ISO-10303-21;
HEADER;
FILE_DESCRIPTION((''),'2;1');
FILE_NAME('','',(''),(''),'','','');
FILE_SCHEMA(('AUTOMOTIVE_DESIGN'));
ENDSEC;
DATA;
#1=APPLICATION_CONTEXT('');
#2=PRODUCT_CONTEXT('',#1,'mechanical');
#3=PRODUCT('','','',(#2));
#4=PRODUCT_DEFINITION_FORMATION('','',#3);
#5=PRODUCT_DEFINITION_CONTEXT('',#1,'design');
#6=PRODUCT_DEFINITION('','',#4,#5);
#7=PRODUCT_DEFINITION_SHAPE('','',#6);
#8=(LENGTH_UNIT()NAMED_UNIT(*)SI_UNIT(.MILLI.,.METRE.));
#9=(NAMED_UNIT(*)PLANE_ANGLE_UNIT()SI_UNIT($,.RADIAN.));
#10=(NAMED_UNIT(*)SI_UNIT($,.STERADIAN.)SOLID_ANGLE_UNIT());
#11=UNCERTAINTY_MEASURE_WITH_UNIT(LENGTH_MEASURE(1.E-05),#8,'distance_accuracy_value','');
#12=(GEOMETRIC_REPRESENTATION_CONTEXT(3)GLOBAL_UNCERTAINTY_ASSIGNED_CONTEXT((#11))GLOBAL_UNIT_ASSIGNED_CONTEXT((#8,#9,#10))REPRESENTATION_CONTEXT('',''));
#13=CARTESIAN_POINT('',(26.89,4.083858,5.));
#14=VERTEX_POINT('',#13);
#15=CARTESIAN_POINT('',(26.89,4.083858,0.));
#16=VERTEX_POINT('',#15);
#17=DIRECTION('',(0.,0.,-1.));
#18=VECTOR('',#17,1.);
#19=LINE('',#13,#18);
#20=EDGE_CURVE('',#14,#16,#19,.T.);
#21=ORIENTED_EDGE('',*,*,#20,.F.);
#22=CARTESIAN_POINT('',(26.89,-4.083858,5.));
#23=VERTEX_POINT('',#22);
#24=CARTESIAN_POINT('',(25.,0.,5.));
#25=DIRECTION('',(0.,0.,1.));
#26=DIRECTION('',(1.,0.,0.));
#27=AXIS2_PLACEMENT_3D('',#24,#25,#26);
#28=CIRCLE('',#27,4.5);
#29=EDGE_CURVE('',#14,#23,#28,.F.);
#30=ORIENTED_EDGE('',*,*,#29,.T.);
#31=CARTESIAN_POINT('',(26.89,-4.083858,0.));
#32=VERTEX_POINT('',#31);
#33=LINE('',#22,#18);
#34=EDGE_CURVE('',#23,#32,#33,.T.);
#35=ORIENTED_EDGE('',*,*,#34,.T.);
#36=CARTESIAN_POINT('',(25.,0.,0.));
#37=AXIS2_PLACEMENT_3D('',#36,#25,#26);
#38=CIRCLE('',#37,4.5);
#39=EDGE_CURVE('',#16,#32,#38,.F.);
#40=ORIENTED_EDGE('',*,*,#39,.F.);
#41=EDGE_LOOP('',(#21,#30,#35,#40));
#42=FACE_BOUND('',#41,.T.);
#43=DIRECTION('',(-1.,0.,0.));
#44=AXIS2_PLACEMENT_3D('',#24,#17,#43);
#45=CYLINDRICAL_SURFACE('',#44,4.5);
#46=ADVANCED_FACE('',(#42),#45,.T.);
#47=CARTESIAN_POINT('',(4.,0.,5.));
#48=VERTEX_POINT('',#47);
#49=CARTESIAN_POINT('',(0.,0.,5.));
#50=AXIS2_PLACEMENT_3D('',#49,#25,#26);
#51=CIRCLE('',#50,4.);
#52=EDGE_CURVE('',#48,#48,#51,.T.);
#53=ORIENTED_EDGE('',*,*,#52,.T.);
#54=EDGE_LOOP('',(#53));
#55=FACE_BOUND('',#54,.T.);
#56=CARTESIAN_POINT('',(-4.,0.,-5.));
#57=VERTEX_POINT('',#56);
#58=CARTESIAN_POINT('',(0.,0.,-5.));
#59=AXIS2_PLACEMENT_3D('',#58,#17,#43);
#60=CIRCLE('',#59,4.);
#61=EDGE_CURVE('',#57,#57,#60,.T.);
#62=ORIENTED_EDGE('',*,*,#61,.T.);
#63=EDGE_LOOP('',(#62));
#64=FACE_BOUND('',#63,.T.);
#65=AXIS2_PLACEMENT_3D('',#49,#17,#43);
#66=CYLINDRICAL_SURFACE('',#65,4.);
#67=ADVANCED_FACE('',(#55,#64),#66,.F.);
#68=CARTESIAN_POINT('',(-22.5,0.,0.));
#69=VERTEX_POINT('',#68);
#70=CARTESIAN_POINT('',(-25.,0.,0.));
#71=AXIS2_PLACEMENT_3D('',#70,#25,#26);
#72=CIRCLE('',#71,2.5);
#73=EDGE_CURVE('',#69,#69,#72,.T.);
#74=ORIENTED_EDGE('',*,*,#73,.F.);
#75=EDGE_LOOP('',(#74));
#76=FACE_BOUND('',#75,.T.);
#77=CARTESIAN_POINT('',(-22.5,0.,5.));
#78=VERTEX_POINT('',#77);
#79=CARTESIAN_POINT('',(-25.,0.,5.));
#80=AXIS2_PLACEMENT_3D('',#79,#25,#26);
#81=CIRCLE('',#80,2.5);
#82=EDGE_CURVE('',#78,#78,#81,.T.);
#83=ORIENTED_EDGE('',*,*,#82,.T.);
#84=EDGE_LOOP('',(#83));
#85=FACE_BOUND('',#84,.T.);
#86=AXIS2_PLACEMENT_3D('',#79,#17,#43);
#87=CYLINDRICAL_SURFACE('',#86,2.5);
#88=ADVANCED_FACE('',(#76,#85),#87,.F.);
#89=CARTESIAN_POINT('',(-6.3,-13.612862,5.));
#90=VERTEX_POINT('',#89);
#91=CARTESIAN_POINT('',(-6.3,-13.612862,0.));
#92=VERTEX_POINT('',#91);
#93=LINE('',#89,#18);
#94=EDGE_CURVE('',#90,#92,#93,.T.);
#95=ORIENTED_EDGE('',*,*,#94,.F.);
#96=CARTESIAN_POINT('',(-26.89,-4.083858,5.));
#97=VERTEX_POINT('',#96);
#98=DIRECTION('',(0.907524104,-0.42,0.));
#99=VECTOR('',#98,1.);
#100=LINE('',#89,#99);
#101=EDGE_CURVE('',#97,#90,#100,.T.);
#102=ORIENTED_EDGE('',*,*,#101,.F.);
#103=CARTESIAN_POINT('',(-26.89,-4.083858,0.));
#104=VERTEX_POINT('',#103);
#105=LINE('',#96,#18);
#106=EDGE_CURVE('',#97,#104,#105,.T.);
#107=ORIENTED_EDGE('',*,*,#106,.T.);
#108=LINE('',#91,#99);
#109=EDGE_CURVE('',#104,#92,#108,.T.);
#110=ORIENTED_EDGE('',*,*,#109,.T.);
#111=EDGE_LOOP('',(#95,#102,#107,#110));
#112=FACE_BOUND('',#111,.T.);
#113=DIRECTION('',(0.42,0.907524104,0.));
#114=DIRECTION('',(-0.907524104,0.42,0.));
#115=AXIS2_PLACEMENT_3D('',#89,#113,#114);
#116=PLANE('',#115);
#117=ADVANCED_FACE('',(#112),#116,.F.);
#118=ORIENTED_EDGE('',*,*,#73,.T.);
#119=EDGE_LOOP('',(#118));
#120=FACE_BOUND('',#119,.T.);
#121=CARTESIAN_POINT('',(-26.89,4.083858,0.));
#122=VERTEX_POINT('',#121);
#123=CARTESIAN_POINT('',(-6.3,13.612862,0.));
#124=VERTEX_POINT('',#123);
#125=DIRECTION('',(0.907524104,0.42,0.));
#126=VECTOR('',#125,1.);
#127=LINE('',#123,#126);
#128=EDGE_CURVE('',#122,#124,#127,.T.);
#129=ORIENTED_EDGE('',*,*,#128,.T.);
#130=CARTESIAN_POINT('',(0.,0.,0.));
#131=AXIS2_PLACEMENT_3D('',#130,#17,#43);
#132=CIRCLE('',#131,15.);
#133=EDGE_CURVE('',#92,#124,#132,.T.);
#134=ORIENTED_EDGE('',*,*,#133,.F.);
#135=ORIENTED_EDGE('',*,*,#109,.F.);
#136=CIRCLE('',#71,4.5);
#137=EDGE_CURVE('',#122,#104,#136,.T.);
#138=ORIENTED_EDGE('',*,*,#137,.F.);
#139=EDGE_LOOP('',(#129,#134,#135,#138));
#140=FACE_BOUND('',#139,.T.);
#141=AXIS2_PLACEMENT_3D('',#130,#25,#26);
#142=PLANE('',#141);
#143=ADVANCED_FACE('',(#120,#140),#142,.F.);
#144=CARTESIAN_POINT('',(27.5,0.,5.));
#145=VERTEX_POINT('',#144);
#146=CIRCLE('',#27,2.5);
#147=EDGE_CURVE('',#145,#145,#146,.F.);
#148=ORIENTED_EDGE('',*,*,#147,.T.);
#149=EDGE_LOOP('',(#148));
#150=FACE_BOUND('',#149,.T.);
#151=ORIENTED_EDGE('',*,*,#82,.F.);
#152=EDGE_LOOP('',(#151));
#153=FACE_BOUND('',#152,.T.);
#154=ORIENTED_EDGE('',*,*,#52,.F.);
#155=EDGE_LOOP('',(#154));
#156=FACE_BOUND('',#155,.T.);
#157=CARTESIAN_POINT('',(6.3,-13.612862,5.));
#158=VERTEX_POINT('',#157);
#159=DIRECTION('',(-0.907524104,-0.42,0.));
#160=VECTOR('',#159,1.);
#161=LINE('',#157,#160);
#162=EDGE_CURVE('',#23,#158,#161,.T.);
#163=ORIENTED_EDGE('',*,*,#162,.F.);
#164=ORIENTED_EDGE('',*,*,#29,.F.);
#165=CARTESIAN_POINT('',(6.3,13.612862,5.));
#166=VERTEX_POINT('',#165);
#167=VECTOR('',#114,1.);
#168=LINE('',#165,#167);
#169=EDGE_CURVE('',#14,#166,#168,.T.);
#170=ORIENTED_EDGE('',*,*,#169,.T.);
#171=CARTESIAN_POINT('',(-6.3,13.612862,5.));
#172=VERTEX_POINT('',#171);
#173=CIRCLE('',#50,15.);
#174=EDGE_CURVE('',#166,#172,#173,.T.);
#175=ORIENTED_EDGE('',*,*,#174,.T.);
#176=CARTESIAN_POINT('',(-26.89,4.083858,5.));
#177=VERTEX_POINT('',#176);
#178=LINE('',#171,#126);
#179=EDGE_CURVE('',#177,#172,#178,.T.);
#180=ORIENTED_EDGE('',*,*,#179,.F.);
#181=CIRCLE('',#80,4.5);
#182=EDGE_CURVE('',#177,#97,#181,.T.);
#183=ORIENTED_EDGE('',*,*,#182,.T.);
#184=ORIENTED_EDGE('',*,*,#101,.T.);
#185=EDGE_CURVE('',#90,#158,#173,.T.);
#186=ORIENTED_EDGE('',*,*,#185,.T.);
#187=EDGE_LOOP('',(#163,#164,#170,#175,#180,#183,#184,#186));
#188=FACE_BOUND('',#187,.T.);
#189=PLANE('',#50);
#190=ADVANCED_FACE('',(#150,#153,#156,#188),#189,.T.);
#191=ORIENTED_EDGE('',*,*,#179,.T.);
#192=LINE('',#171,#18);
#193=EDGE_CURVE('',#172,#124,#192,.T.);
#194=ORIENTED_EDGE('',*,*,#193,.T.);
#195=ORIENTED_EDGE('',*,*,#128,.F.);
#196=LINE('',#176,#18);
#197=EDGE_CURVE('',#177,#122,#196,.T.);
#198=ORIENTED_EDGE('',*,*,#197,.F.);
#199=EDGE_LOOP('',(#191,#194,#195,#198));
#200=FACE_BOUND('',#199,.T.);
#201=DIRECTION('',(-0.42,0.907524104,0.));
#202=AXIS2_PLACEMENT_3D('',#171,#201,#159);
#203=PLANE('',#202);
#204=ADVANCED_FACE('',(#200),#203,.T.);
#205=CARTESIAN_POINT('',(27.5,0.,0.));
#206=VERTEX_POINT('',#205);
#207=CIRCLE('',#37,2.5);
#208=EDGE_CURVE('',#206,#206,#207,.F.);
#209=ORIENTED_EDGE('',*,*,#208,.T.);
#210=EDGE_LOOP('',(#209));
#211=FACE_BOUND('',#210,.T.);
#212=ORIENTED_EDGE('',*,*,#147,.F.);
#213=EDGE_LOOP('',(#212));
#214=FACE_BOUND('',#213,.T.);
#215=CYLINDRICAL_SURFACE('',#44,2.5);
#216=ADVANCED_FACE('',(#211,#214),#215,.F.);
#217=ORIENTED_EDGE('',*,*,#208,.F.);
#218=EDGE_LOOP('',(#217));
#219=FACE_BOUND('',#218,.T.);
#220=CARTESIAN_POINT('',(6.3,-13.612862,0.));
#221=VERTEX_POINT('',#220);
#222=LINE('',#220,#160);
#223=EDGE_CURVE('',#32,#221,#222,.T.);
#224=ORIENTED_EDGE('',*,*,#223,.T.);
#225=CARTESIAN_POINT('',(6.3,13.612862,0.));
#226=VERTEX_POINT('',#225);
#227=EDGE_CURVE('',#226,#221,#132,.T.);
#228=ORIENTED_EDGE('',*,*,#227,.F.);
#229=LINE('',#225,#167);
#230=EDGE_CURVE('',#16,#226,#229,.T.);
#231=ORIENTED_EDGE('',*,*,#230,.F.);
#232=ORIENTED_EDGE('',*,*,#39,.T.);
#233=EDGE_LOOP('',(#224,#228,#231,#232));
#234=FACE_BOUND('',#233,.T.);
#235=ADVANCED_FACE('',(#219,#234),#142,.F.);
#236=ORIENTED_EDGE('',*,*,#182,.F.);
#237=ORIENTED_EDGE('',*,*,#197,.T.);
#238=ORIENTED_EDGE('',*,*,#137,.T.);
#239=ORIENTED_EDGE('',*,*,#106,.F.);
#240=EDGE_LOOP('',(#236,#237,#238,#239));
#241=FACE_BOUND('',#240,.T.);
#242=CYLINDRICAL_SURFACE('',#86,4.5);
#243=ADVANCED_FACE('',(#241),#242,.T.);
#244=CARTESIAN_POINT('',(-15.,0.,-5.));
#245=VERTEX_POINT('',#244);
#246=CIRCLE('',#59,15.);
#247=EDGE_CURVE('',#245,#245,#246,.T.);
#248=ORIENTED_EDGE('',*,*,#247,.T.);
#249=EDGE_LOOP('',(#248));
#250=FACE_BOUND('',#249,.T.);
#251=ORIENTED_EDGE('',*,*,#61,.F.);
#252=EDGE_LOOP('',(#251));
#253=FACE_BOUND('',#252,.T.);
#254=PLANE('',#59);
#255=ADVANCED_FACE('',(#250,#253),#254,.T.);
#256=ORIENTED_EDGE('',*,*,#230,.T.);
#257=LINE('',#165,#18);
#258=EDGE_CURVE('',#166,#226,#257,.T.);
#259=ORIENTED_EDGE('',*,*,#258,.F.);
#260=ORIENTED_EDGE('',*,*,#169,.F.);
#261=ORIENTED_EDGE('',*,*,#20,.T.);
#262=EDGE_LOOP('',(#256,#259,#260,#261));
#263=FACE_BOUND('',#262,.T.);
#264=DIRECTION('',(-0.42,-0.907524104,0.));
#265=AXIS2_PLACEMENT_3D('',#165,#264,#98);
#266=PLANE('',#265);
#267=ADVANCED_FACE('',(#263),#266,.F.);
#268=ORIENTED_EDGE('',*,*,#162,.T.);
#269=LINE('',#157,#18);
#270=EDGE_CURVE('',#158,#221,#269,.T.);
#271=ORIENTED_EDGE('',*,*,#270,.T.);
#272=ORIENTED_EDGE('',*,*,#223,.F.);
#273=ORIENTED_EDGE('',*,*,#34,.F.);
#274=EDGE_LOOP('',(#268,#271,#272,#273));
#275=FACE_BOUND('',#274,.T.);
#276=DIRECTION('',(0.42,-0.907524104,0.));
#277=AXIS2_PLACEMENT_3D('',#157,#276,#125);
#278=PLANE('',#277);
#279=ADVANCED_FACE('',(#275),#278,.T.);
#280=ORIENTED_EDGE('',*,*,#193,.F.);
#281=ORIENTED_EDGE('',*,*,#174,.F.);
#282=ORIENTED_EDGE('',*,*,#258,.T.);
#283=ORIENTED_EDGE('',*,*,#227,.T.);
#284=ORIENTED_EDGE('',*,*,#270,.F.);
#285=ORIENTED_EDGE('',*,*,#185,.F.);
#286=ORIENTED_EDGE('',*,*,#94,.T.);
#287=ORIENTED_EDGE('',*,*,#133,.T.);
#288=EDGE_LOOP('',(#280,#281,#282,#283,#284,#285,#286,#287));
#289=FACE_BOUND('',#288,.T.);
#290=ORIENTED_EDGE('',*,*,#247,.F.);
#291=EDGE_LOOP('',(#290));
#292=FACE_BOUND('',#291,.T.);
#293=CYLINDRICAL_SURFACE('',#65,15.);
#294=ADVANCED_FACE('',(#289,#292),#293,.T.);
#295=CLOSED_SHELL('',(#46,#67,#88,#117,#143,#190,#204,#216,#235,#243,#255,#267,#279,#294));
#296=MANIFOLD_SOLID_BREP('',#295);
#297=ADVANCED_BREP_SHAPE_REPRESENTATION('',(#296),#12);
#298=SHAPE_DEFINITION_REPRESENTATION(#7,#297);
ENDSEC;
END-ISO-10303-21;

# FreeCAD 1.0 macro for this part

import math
import FreeCAD as App
import Part
import Sketcher
from FreeCAD import Vector

doc = App.newDocument("Part")
body = doc.addObject("PartDesign::Body", "Body")

# Sketch on XY plane
sketch1 = body.newObject("Sketcher::SketchObject", "Sketch")
sketch1.AttachmentSupport = (doc.getObject("XY_Plane"), [""])
sketch1.MapMode = "FlatFace"
sketch1.addGeometry(Part.LineSegment(Vector(6.3, -13.6, 0), Vector(26.9, -4.1, 0)), False)
sketch1.addGeometry(Part.ArcOfCircle(Part.Circle(Vector(25, 0, 0), Vector(0, 0, 1), 4.5), math.radians(-65), math.radians(65)), False)
sketch1.addGeometry(Part.LineSegment(Vector(26.9, 4.1, 0), Vector(6.3, 13.6, 0)), False)
sketch1.addGeometry(Part.ArcOfCircle(Part.Circle(Vector(0, 0, 0), Vector(0, 0, 1), 15), math.radians(65), math.radians(115)), False)
sketch1.addGeometry(Part.LineSegment(Vector(-6.3, 13.6, 0), Vector(-26.9, 4.1, 0)), False)
sketch1.addGeometry(Part.ArcOfCircle(Part.Circle(Vector(-25, 0, 0), Vector(0, 0, 1), 4.5), math.radians(115), math.radians(245)), False)
sketch1.addGeometry(Part.LineSegment(Vector(-26.9, -4.1, 0), Vector(-6.3, -13.6, 0)), False)
sketch1.addGeometry(Part.ArcOfCircle(Part.Circle(Vector(0, 0, 0), Vector(0, 0, 1), 15), math.radians(-115), math.radians(-65)), False)
sketch1.addGeometry(Part.Circle(Vector(-25, 0, 0), Vector(0, 0, 1), 2.5), False)
sketch1.addGeometry(Part.Circle(Vector(0, 0, 0), Vector(0, 0, 1), 4), False)
sketch1.addGeometry(Part.Circle(Vector(25, 0, 0), Vector(0, 0, 1), 2.5), False)
sketch1.addConstraint(Sketcher.Constraint("Tangent", 0, 2, 1, 1))
sketch1.addConstraint(Sketcher.Constraint("Tangent", 1, 2, 2, 1))
sketch1.addConstraint(Sketcher.Constraint("Tangent", 2, 2, 3, 1))
sketch1.addConstraint(Sketcher.Constraint("Tangent", 3, 2, 4, 1))
sketch1.addConstraint(Sketcher.Constraint("Tangent", 4, 2, 5, 1))
sketch1.addConstraint(Sketcher.Constraint("Tangent", 5, 2, 6, 1))
sketch1.addConstraint(Sketcher.Constraint("Tangent", 6, 2, 7, 1))
sketch1.addConstraint(Sketcher.Constraint("Tangent", 7, 2, 0, 1))
sketch1.addConstraint(Sketcher.Constraint("Coincident", 3, 3, -1, 1))
sketch1.addConstraint(Sketcher.Constraint("Coincident", 7, 3, -1, 1))
sketch1.addConstraint(Sketcher.Constraint("Coincident", 9, 3, -1, 1))
sketch1.addConstraint(Sketcher.Constraint("Coincident", 8, 3, 5, 3))
sketch1.addConstraint(Sketcher.Constraint("Coincident", 10, 3, 1, 3))
sketch1.addConstraint(Sketcher.Constraint("Equal", 1, 5))
sketch1.addConstraint(Sketcher.Constraint("Equal", 3, 7))
sketch1.addConstraint(Sketcher.Constraint("Equal", 8, 10))
sketch1.addConstraint(Sketcher.Constraint("Symmetric", 1, 3, 5, 3, -1, 1))
sketch1.addConstraint(Sketcher.Constraint("PointOnObject", 1, 3, -1))
sketch1.addConstraint(Sketcher.Constraint("Diameter", 8, 5.0))
sketch1.addConstraint(Sketcher.Constraint("Diameter", 9, 8.0))
sketch1.addConstraint(Sketcher.Constraint("Radius", 3, 15.0))
sketch1.addConstraint(Sketcher.Constraint("Radius", 1, 4.5))
sketch1.addConstraint(Sketcher.Constraint("DistanceX", -1, 1, 1, 3, 25.0))
pad1 = body.newObject("PartDesign::Pad", "Pad")
pad1.Profile = sketch1
pad1.Length = 5

# Sketch on XY plane
sketch2 = body.newObject("Sketcher::SketchObject", "Sketch001")
sketch2.AttachmentSupport = (doc.getObject("XY_Plane"), [""])
sketch2.MapMode = "FlatFace"
sketch2.AttachmentOffset = App.Placement(Vector(0, 0, -5), App.Rotation())
sketch2.addGeometry(Part.Circle(Vector(0, 0, 0), Vector(0, 0, 1), 15), False)
sketch2.addGeometry(Part.Circle(Vector(0, 0, 0), Vector(0, 0, 1), 4), False)
sketch2.addConstraint(Sketcher.Constraint("Coincident", 0, 3, -1, 1))
sketch2.addConstraint(Sketcher.Constraint("Coincident", 1, 3, -1, 1))
sketch2.addConstraint(Sketcher.Constraint("Diameter", 0, 30.0))
sketch2.addConstraint(Sketcher.Constraint("Diameter", 1, 8.0))
pad2 = body.newObject("PartDesign::Pad", "Pad001")
pad2.Profile = sketch2
pad2.Length = 5

doc.recompute()
